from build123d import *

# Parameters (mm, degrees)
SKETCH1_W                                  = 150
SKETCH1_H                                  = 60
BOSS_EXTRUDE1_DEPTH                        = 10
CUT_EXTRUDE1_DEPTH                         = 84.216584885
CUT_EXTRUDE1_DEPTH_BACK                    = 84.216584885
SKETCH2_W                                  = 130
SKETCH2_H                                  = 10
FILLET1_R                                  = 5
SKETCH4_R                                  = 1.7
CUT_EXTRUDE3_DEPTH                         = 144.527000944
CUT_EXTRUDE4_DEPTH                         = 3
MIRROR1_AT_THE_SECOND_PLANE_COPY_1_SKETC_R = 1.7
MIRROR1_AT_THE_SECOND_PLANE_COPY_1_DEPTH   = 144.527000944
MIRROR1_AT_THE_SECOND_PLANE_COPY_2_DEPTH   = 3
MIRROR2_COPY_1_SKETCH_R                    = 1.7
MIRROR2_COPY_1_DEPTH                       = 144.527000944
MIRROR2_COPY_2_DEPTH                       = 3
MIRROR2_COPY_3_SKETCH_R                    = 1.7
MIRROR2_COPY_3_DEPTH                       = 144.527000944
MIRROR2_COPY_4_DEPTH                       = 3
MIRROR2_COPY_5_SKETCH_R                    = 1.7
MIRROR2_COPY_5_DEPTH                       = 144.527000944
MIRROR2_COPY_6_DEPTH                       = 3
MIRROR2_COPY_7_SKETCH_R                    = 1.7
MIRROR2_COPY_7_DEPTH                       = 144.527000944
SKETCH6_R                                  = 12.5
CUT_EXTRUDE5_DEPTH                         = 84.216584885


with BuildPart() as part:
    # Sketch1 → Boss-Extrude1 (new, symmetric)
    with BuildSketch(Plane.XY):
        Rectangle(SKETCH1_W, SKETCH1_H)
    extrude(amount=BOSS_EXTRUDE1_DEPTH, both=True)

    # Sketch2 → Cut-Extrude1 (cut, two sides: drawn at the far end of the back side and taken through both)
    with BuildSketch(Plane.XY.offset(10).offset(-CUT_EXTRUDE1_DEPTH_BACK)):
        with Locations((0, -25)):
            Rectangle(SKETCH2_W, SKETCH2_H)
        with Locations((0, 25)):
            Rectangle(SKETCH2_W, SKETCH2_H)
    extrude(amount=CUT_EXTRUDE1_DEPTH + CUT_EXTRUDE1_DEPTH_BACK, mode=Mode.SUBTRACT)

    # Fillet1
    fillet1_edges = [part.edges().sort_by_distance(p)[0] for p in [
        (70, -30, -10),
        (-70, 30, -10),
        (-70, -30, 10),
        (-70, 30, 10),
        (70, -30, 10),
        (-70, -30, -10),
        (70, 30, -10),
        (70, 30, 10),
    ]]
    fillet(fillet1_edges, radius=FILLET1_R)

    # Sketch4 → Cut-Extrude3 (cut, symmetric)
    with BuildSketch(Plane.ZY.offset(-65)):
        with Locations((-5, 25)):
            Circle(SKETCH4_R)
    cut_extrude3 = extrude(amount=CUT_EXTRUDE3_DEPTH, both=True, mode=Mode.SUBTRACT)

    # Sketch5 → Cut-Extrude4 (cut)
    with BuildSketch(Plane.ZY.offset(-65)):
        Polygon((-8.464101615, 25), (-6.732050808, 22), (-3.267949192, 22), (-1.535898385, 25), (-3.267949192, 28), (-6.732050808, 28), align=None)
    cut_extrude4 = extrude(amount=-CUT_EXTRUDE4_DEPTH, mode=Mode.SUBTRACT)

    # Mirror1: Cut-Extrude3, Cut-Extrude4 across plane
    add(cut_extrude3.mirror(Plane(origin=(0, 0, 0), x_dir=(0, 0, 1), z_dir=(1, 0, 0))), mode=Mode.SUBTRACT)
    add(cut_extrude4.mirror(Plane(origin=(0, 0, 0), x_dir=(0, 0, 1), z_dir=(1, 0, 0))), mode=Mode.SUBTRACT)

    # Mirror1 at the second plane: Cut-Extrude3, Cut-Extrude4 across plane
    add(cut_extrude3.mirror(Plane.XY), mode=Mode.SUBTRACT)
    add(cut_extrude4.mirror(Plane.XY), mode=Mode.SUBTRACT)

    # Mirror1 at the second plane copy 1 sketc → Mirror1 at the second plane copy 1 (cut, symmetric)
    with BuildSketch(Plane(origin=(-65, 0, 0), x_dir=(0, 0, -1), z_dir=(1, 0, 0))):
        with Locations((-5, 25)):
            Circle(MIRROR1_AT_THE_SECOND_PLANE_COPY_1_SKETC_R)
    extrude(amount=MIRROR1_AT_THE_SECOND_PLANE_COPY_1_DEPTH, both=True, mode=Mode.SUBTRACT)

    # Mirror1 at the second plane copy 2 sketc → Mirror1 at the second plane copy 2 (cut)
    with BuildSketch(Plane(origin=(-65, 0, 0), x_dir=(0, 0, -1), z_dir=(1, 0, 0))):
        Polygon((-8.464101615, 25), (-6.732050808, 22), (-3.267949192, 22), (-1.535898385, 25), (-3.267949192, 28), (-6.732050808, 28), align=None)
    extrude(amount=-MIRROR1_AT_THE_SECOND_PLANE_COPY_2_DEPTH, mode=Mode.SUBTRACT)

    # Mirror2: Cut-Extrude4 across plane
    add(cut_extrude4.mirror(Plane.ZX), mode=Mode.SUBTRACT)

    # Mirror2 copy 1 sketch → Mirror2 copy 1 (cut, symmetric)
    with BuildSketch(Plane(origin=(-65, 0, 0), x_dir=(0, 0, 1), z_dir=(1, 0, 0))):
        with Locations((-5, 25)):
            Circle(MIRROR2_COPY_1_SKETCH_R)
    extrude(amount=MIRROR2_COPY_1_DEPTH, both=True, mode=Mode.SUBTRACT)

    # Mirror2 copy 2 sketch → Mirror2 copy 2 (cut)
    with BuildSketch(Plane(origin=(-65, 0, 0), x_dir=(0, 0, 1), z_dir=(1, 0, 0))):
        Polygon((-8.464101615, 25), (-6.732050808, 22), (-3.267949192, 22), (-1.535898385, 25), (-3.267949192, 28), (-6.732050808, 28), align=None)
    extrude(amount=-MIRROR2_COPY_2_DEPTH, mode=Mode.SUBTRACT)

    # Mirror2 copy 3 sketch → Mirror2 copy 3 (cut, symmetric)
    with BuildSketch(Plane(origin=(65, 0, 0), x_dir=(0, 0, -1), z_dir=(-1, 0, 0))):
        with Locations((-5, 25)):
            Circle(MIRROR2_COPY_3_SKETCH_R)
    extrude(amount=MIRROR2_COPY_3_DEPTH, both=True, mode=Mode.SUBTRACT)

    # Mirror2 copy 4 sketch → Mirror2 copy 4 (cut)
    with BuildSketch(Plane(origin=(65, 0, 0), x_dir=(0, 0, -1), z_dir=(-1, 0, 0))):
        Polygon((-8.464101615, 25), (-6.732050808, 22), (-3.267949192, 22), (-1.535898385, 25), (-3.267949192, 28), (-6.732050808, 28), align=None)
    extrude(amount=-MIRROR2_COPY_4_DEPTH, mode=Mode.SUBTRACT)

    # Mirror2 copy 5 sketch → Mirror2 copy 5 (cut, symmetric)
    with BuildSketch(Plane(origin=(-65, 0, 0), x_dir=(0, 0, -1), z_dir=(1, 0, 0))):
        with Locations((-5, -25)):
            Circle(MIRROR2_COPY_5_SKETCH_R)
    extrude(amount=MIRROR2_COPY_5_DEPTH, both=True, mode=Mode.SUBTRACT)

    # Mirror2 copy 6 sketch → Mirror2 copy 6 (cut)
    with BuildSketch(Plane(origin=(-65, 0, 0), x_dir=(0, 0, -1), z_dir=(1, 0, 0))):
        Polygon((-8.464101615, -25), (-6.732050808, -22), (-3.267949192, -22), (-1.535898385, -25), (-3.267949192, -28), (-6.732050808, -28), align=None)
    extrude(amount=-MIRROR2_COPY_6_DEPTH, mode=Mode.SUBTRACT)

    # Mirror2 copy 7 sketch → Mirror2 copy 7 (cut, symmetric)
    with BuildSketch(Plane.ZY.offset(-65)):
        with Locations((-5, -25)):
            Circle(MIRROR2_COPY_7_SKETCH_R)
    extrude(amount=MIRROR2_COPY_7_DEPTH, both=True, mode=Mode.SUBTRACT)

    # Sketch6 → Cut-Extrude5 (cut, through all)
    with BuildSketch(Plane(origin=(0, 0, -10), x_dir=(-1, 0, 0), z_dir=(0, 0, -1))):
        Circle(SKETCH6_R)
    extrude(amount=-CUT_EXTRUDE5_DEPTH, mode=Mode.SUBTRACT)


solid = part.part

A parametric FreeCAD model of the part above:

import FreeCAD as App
import Part
import Sketcher

V = App.Vector
Q = App.Units.Quantity


def edges_at(feature, points):
    """Names of the edges that pass closest to the given points."""
    edges = feature.Shape.Edges
    near = lambda p: min(range(len(edges)), key=lambda i: edges[i].distToShape(Part.Vertex(*p))[0])
    return sorted({f"Edge{near(p) + 1}" for p in points})

doc = App.newDocument("Part")
body = doc.addObject("PartDesign::Body", "Body")

sketch1 = doc.addObject("Sketcher::SketchObject", "Sketch")
body.addObject(sketch1)
sketch1.AttachmentSupport = (doc.XY_Plane, [""])
sketch1.MapMode = "FlatFace"
sketch1.addGeometry([
    Part.LineSegment(V(-75, 30, 0), V(-75, -30, 0)),
    Part.LineSegment(V(-75, -30, 0), V(75, -30, 0)),
    Part.LineSegment(V(75, -30, 0), V(75, 30, 0)),
    Part.LineSegment(V(75, 30, 0), V(-75, 30, 0)),
], False)
sketch1.addConstraint([
    Sketcher.Constraint("Coincident", 0, 2, 1, 1),
    Sketcher.Constraint("Coincident", 1, 2, 2, 1),
    Sketcher.Constraint("Coincident", 2, 2, 3, 1),
    Sketcher.Constraint("Coincident", 3, 2, 0, 1),
    Sketcher.Constraint("Vertical", 0),
    Sketcher.Constraint("Horizontal", 1),
    Sketcher.Constraint("Vertical", 2),
    Sketcher.Constraint("Horizontal", 3),
    Sketcher.Constraint("Symmetric", 0, 2, 2, 2, -1, 1),
    Sketcher.Constraint("DistanceX", 1, 1, 1, 2, Q("150 mm")),
    Sketcher.Constraint("DistanceY", 0, 2, 0, 1, Q("60 mm")),
])
pad1 = doc.addObject("PartDesign::Pad", "Pad")
body.addObject(pad1)
pad1.Profile = sketch1
pad1.Length = 20
pad1.Midplane = True

sketch2 = doc.addObject("Sketcher::SketchObject", "Sketch001")
body.addObject(sketch2)
sketch2.AttachmentSupport = (doc.XY_Plane, [""])
sketch2.MapMode = "FlatFace"
sketch2.AttachmentOffset = App.Placement(V(0, 0, 10), App.Rotation())
sketch2.addGeometry([
    Part.LineSegment(V(-65, -20, 0), V(-65, -30, 0)),
    Part.LineSegment(V(-65, -30, 0), V(65, -30, 0)),
    Part.LineSegment(V(65, -30, 0), V(65, -20, 0)),
    Part.LineSegment(V(65, -20, 0), V(-65, -20, 0)),
    Part.LineSegment(V(-65, 30, 0), V(-65, 20, 0)),
    Part.LineSegment(V(-65, 20, 0), V(65, 20, 0)),
    Part.LineSegment(V(65, 20, 0), V(65, 30, 0)),
    Part.LineSegment(V(65, 30, 0), V(-65, 30, 0)),
], False)
sketch2.addConstraint([
    Sketcher.Constraint("Coincident", 0, 2, 1, 1),
    Sketcher.Constraint("Coincident", 1, 2, 2, 1),
    Sketcher.Constraint("Coincident", 2, 2, 3, 1),
    Sketcher.Constraint("Coincident", 3, 2, 0, 1),
    Sketcher.Constraint("Coincident", 4, 2, 5, 1),
    Sketcher.Constraint("Coincident", 5, 2, 6, 1),
    Sketcher.Constraint("Coincident", 6, 2, 7, 1),
    Sketcher.Constraint("Coincident", 7, 2, 4, 1),
    Sketcher.Constraint("Vertical", 0),
    Sketcher.Constraint("Horizontal", 1),
    Sketcher.Constraint("Vertical", 2),
    Sketcher.Constraint("Horizontal", 3),
    Sketcher.Constraint("Vertical", 4),
    Sketcher.Constraint("Horizontal", 5),
    Sketcher.Constraint("Vertical", 6),
    Sketcher.Constraint("Horizontal", 7),
    Sketcher.Constraint("Symmetric", 2, 2, 4, 2, -1, 1),
    Sketcher.Constraint("Symmetric", 0, 2, 6, 2, -1, 1),
    Sketcher.Constraint("Vertical", 3, 2, 4, 2),
    Sketcher.Constraint("DistanceX", 1, 1, 1, 2, Q("130 mm")),
    Sketcher.Constraint("DistanceY", 0, 2, 0, 1, Q("10 mm")),
    Sketcher.Constraint("DistanceY", 0, 2, -1, 1, Q("30 mm")),
])
pocket1 = doc.addObject("PartDesign::Pocket", "Pocket")
body.addObject(pocket1)
pocket1.Profile = sketch2
pocket1.Type = "ThroughAll"
pocket1.Midplane = True
doc.recompute()

fillet = doc.addObject("PartDesign::Fillet", "Fillet")
body.addObject(fillet)
fillet.Base = (pocket1, edges_at(pocket1, [
    (70, -30, -10),
    (-70, 30, -10),
    (-70, -30, 10),
    (-70, 30, 10),
    (70, -30, 10),
    (-70, -30, -10),
    (70, 30, -10),
    (70, 30, 10),
]))
fillet.Radius = 5

sketch3 = doc.addObject("Sketcher::SketchObject", "Sketch002")
body.addObject(sketch3)
sketch3.AttachmentSupport = (doc.YZ_Plane, [""])
sketch3.MapMode = "FlatFace"
sketch3.AttachmentOffset = App.Placement(V(0, 0, 65), App.Rotation())
sketch3.addGeometry(Part.Circle(V(25, -5, 0), V(0, 0, 1), 1.7), False)
sketch3.addConstraint([
    Sketcher.Constraint("Diameter", 0, Q("3.4 mm")),
    Sketcher.Constraint("DistanceX", -1, 1, 0, 3, Q("25 mm")),
    Sketcher.Constraint("DistanceY", 0, 3, -1, 1, Q("5 mm")),
])
pocket2 = doc.addObject("PartDesign::Pocket", "Pocket001")
body.addObject(pocket2)
pocket2.Profile = sketch3
pocket2.Length = 289.054002
pocket2.Midplane = True

sketch4 = doc.addObject("Sketcher::SketchObject", "Sketch003")
body.addObject(sketch4)
sketch4.AttachmentSupport = (doc.YZ_Plane, [""])
sketch4.MapMode = "FlatFace"
sketch4.AttachmentOffset = App.Placement(V(0, 0, 65), App.Rotation())
sketch4.addGeometry([
    Part.LineSegment(V(25, -8.5, 0), V(22, -6.7, 0)),
    Part.LineSegment(V(22, -6.7, 0), V(22, -3.3, 0)),
    Part.LineSegment(V(22, -3.3, 0), V(25, -1.5, 0)),
    Part.LineSegment(V(25, -1.5, 0), V(28, -3.3, 0)),
    Part.LineSegment(V(28, -3.3, 0), V(28, -6.7, 0)),
    Part.LineSegment(V(28, -6.7, 0), V(25, -8.5, 0)),
], False)
sketch4.addConstraint([
    Sketcher.Constraint("Coincident", 0, 2, 1, 1),
    Sketcher.Constraint("Coincident", 1, 2, 2, 1),
    Sketcher.Constraint("Coincident", 2, 2, 3, 1),
    Sketcher.Constraint("Coincident", 3, 2, 4, 1),
    Sketcher.Constraint("Coincident", 4, 2, 5, 1),
    Sketcher.Constraint("Coincident", 5, 2, 0, 1),
    Sketcher.Constraint("Vertical", 1),
    Sketcher.Constraint("Vertical", 4),
    Sketcher.Constraint("Parallel", 0, 3),
    Sketcher.Constraint("Parallel", 2, 5),
    Sketcher.Constraint("Horizontal", 1, 2, 3, 2),
    Sketcher.Constraint("Horizontal", 0, 2, 4, 2),
    Sketcher.Constraint("Vertical", 2, 2, 5, 2),
    Sketcher.Constraint("Angle", 0, Q("150 deg")),
    Sketcher.Constraint("DistanceX", -1, 1, 0, 2, Q("22 mm")),
    Sketcher.Constraint("DistanceX", -1, 1, 2, 2, Q("25 mm")),
    Sketcher.Constraint("DistanceY", 1, 1, 1, 2, Q("3.464102 mm")),
    Sketcher.Constraint("DistanceY", 2, 2, -1, 1, Q("1.535898 mm")),
])
pocket3 = doc.addObject("PartDesign::Pocket", "Pocket002")
body.addObject(pocket3)
pocket3.Profile = sketch4
pocket3.Length = 3
pocket3.Reversed = True
doc.recompute()

mirrored = doc.addObject("PartDesign::Mirrored", "Mirrored")
body.addObject(mirrored)
mirrored.Originals = [pocket2, pocket3]
mirrored.MirrorPlane = (doc.YZ_Plane, [""])
body.Tip = mirrored
doc.recompute()

mirrored2 = doc.addObject("PartDesign::Mirrored", "Mirrored001")
body.addObject(mirrored2)
mirrored2.Originals = [pocket2, pocket3]
mirrored2.MirrorPlane = (doc.XY_Plane, [""])
body.Tip = mirrored2

sketch5 = doc.addObject("Sketcher::SketchObject", "Sketch004")
body.addObject(sketch5)
sketch5.AttachmentSupport = (doc.YZ_Plane, [""])
sketch5.MapMode = "FlatFace"
sketch5.AttachmentOffset = App.Placement(V(0, 0, -65), App.Rotation())
sketch5.addGeometry(Part.Circle(V(25, 5, 0), V(0, 0, 1), 1.7), False)
sketch5.addConstraint([
    Sketcher.Constraint("Diameter", 0, Q("3.4 mm")),
    Sketcher.Constraint("DistanceX", -1, 1, 0, 3, Q("25 mm")),
    Sketcher.Constraint("DistanceY", -1, 1, 0, 3, Q("5 mm")),
])
pocket4 = doc.addObject("PartDesign::Pocket", "Pocket003")
body.addObject(pocket4)
pocket4.Profile = sketch5
pocket4.Length = 289.054002
pocket4.Midplane = True

sketch6 = doc.addObject("Sketcher::SketchObject", "Sketch005")
body.addObject(sketch6)
sketch6.AttachmentSupport = (doc.YZ_Plane, [""])
sketch6.MapMode = "FlatFace"
sketch6.AttachmentOffset = App.Placement(V(0, 0, -65), App.Rotation())
sketch6.addGeometry([
    Part.LineSegment(V(25, 8.5, 0), V(22, 6.7, 0)),
    Part.LineSegment(V(22, 6.7, 0), V(22, 3.3, 0)),
    Part.LineSegment(V(22, 3.3, 0), V(25, 1.5, 0)),
    Part.LineSegment(V(25, 1.5, 0), V(28, 3.3, 0)),
    Part.LineSegment(V(28, 3.3, 0), V(28, 6.7, 0)),
    Part.LineSegment(V(28, 6.7, 0), V(25, 8.5, 0)),
], False)
sketch6.addConstraint([
    Sketcher.Constraint("Coincident", 0, 2, 1, 1),
    Sketcher.Constraint("Coincident", 1, 2, 2, 1),
    Sketcher.Constraint("Coincident", 2, 2, 3, 1),
    Sketcher.Constraint("Coincident", 3, 2, 4, 1),
    Sketcher.Constraint("Coincident", 4, 2, 5, 1),
    Sketcher.Constraint("Coincident", 5, 2, 0, 1),
    Sketcher.Constraint("Vertical", 1),
    Sketcher.Constraint("Vertical", 4),
    Sketcher.Constraint("Parallel", 0, 3),
    Sketcher.Constraint("Parallel", 2, 5),
    Sketcher.Constraint("Horizontal", 1, 2, 3, 2),
    Sketcher.Constraint("Horizontal", 0, 2, 4, 2),
    Sketcher.Constraint("Vertical", 2, 2, 5, 2),
    Sketcher.Constraint("Angle", 0, Q("-150 deg")),
    Sketcher.Constraint("DistanceX", -1, 1, 0, 2, Q("22 mm")),
    Sketcher.Constraint("DistanceX", -1, 1, 2, 2, Q("25 mm")),
    Sketcher.Constraint("DistanceY", 1, 2, 1, 1, Q("3.464102 mm")),
    Sketcher.Constraint("DistanceY", -1, 1, 2, 2, Q("1.535898 mm")),
])
pocket5 = doc.addObject("PartDesign::Pocket", "Pocket004")
body.addObject(pocket5)
pocket5.Profile = sketch6
pocket5.Length = 3
doc.recompute()

mirrored3 = doc.addObject("PartDesign::Mirrored", "Mirrored002")
body.addObject(mirrored3)
mirrored3.Originals = [pocket3]
mirrored3.MirrorPlane = (doc.XZ_Plane, [""])
body.Tip = mirrored3

sketch7 = doc.addObject("Sketcher::SketchObject", "Sketch006")
body.addObject(sketch7)
sketch7.AttachmentSupport = (doc.YZ_Plane, [""])
sketch7.MapMode = "FlatFace"
sketch7.AttachmentOffset = App.Placement(V(0, 0, -65), App.Rotation())
sketch7.addGeometry(Part.Circle(V(-25, -5, 0), V(0, 0, 1), 1.7), False)
sketch7.addConstraint([
    Sketcher.Constraint("Diameter", 0, Q("3.4 mm")),
    Sketcher.Constraint("DistanceX", 0, 3, -1, 1, Q("25 mm")),
    Sketcher.Constraint("DistanceY", 0, 3, -1, 1, Q("5 mm")),
])
pocket6 = doc.addObject("PartDesign::Pocket", "Pocket005")
body.addObject(pocket6)
pocket6.Profile = sketch7
pocket6.Length = 289.054002
pocket6.Midplane = True

sketch8 = doc.addObject("Sketcher::SketchObject", "Sketch007")
body.addObject(sketch8)
sketch8.AttachmentSupport = (doc.YZ_Plane, [""])
sketch8.MapMode = "FlatFace"
sketch8.AttachmentOffset = App.Placement(V(0, 0, -65), App.Rotation())
sketch8.addGeometry([
    Part.LineSegment(V(-25, -8.5, 0), V(-22, -6.7, 0)),
    Part.LineSegment(V(-22, -6.7, 0), V(-22, -3.3, 0)),
    Part.LineSegment(V(-22, -3.3, 0), V(-25, -1.5, 0)),
    Part.LineSegment(V(-25, -1.5, 0), V(-28, -3.3, 0)),
    Part.LineSegment(V(-28, -3.3, 0), V(-28, -6.7, 0)),
    Part.LineSegment(V(-28, -6.7, 0), V(-25, -8.5, 0)),
], False)
sketch8.addConstraint([
    Sketcher.Constraint("Coincident", 0, 2, 1, 1),
    Sketcher.Constraint("Coincident", 1, 2, 2, 1),
    Sketcher.Constraint("Coincident", 2, 2, 3, 1),
    Sketcher.Constraint("Coincident", 3, 2, 4, 1),
    Sketcher.Constraint("Coincident", 4, 2, 5, 1),
    Sketcher.Constraint("Coincident", 5, 2, 0, 1),
    Sketcher.Constraint("Vertical", 1),
    Sketcher.Constraint("Vertical", 4),
    Sketcher.Constraint("Parallel", 0, 3),
    Sketcher.Constraint("Parallel", 2, 5),
    Sketcher.Constraint("Horizontal", 1, 2, 3, 2),
    Sketcher.Constraint("Horizontal", 0, 2, 4, 2),
    Sketcher.Constraint("Vertical", 2, 2, 5, 2),
    Sketcher.Constraint("Angle", 0, Q("30 deg")),
    Sketcher.Constraint("DistanceX", 0, 2, -1, 1, Q("22 mm")),
    Sketcher.Constraint("DistanceX", 2, 2, -1, 1, Q("25 mm")),
    Sketcher.Constraint("DistanceY", 1, 1, 1, 2, Q("3.464102 mm")),
    Sketcher.Constraint("DistanceY", 2, 2, -1, 1, Q("1.535898 mm")),
])
pocket7 = doc.addObject("PartDesign::Pocket", "Pocket006")
body.addObject(pocket7)
pocket7.Profile = sketch8
pocket7.Length = 3

sketch9 = doc.addObject("Sketcher::SketchObject", "Sketch008")
body.addObject(sketch9)
sketch9.AttachmentSupport = (doc.YZ_Plane, [""])
sketch9.MapMode = "FlatFace"
sketch9.AttachmentOffset = App.Placement(V(0, 0, 65), App.Rotation())
sketch9.addGeometry(Part.Circle(V(-25, 5, 0), V(0, 0, 1), 1.7), False)
sketch9.addConstraint([
    Sketcher.Constraint("Diameter", 0, Q("3.4 mm")),
    Sketcher.Constraint("DistanceX", 0, 3, -1, 1, Q("25 mm")),
    Sketcher.Constraint("DistanceY", -1, 1, 0, 3, Q("5 mm")),
])
pocket8 = doc.addObject("PartDesign::Pocket", "Pocket007")
body.addObject(pocket8)
pocket8.Profile = sketch9
pocket8.Length = 289.054002
pocket8.Midplane = True

sketch10 = doc.addObject("Sketcher::SketchObject", "Sketch009")
body.addObject(sketch10)
sketch10.AttachmentSupport = (doc.YZ_Plane, [""])
sketch10.MapMode = "FlatFace"
sketch10.AttachmentOffset = App.Placement(V(0, 0, 65), App.Rotation())
sketch10.addGeometry([
    Part.LineSegment(V(-25, 8.5, 0), V(-22, 6.7, 0)),
    Part.LineSegment(V(-22, 6.7, 0), V(-22, 3.3, 0)),
    Part.LineSegment(V(-22, 3.3, 0), V(-25, 1.5, 0)),
    Part.LineSegment(V(-25, 1.5, 0), V(-28, 3.3, 0)),
    Part.LineSegment(V(-28, 3.3, 0), V(-28, 6.7, 0)),
    Part.LineSegment(V(-28, 6.7, 0), V(-25, 8.5, 0)),
], False)
sketch10.addConstraint([
    Sketcher.Constraint("Coincident", 0, 2, 1, 1),
    Sketcher.Constraint("Coincident", 1, 2, 2, 1),
    Sketcher.Constraint("Coincident", 2, 2, 3, 1),
    Sketcher.Constraint("Coincident", 3, 2, 4, 1),
    Sketcher.Constraint("Coincident", 4, 2, 5, 1),
    Sketcher.Constraint("Coincident", 5, 2, 0, 1),
    Sketcher.Constraint("Vertical", 1),
    Sketcher.Constraint("Vertical", 4),
    Sketcher.Constraint("Parallel", 0, 3),
    Sketcher.Constraint("Parallel", 2, 5),
    Sketcher.Constraint("Horizontal", 1, 2, 3, 2),
    Sketcher.Constraint("Horizontal", 0, 2, 4, 2),
    Sketcher.Constraint("Vertical", 2, 2, 5, 2),
    Sketcher.Constraint("Angle", 0, Q("-30 deg")),
    Sketcher.Constraint("DistanceX", 0, 2, -1, 1, Q("22 mm")),
    Sketcher.Constraint("DistanceX", 2, 2, -1, 1, Q("25 mm")),
    Sketcher.Constraint("DistanceY", 1, 2, 1, 1, Q("3.464102 mm")),
    Sketcher.Constraint("DistanceY", -1, 1, 2, 2, Q("1.535898 mm")),
])
pocket9 = doc.addObject("PartDesign::Pocket", "Pocket008")
body.addObject(pocket9)
pocket9.Profile = sketch10
pocket9.Length = 3
pocket9.Reversed = True

sketch11 = doc.addObject("Sketcher::SketchObject", "Sketch010")
body.addObject(sketch11)
sketch11.AttachmentSupport = (doc.YZ_Plane, [""])
sketch11.MapMode = "FlatFace"
sketch11.AttachmentOffset = App.Placement(V(0, 0, -65), App.Rotation())
sketch11.addGeometry(Part.Circle(V(-25, 5, 0), V(0, 0, 1), 1.7), False)
sketch11.addConstraint([
    Sketcher.Constraint("Diameter", 0, Q("3.4 mm")),
    Sketcher.Constraint("DistanceX", 0, 3, -1, 1, Q("25 mm")),
    Sketcher.Constraint("DistanceY", -1, 1, 0, 3, Q("5 mm")),
])
pocket10 = doc.addObject("PartDesign::Pocket", "Pocket009")
body.addObject(pocket10)
pocket10.Profile = sketch11
pocket10.Length = 289.054002
pocket10.Midplane = True

sketch12 = doc.addObject("Sketcher::SketchObject", "Sketch011")
body.addObject(sketch12)
sketch12.AttachmentSupport = (doc.YZ_Plane, [""])
sketch12.MapMode = "FlatFace"
sketch12.AttachmentOffset = App.Placement(V(0, 0, -65), App.Rotation())
sketch12.addGeometry([
    Part.LineSegment(V(-22, 6.7, 0), V(-25, 8.5, 0)),
    Part.LineSegment(V(-25, 8.5, 0), V(-28, 6.7, 0)),
    Part.LineSegment(V(-28, 6.7, 0), V(-28, 3.3, 0)),
    Part.LineSegment(V(-28, 3.3, 0), V(-25, 1.5, 0)),
    Part.LineSegment(V(-25, 1.5, 0), V(-22, 3.3, 0)),
    Part.LineSegment(V(-22, 3.3, 0), V(-22, 6.7, 0)),
], False)
sketch12.addConstraint([
    Sketcher.Constraint("Coincident", 0, 2, 1, 1),
    Sketcher.Constraint("Coincident", 1, 2, 2, 1),
    Sketcher.Constraint("Coincident", 2, 2, 3, 1),
    Sketcher.Constraint("Coincident", 3, 2, 4, 1),
    Sketcher.Constraint("Coincident", 4, 2, 5, 1),
    Sketcher.Constraint("Coincident", 5, 2, 0, 1),
    Sketcher.Constraint("Vertical", 2),
    Sketcher.Constraint("Vertical", 5),
    Sketcher.Constraint("Parallel", 0, 3),
    Sketcher.Constraint("Parallel", 1, 4),
    Sketcher.Constraint("Horizontal", 2, 2, 4, 2),
    Sketcher.Constraint("Horizontal", 1, 2, 5, 2),
    Sketcher.Constraint("Vertical", 0, 2, 3, 2),
    Sketcher.Constraint("Angle", 0, Q("150 deg")),
    Sketcher.Constraint("DistanceX", 0, 2, -1, 1, Q("25 mm")),
    Sketcher.Constraint("DistanceX", 1, 2, -1, 1, Q("28 mm")),
    Sketcher.Constraint("DistanceY", 2, 2, 2, 1, Q("3.464102 mm")),
    Sketcher.Constraint("DistanceY", -1, 1, 0, 2, Q("8.464102 mm")),
])
pocket11 = doc.addObject("PartDesign::Pocket", "Pocket010")
body.addObject(pocket11)
pocket11.Profile = sketch12
pocket11.Length = 3

sketch13 = doc.addObject("Sketcher::SketchObject", "Sketch012")
body.addObject(sketch13)
sketch13.AttachmentSupport = (doc.YZ_Plane, [""])
sketch13.MapMode = "FlatFace"
sketch13.AttachmentOffset = App.Placement(V(0, 0, 65), App.Rotation())
sketch13.addGeometry(Part.Circle(V(-25, -5, 0), V(0, 0, 1), 1.7), False)
sketch13.addConstraint([
    Sketcher.Constraint("Diameter", 0, Q("3.4 mm")),
    Sketcher.Constraint("DistanceX", 0, 3, -1, 1, Q("25 mm")),
    Sketcher.Constraint("DistanceY", 0, 3, -1, 1, Q("5 mm")),
])
pocket12 = doc.addObject("PartDesign::Pocket", "Pocket011")
body.addObject(pocket12)
pocket12.Profile = sketch13
pocket12.Length = 289.054002
pocket12.Midplane = True

sketch14 = doc.addObject("Sketcher::SketchObject", "Sketch013")
body.addObject(sketch14)
sketch14.AttachmentSupport = (doc.XY_Plane, [""])
sketch14.MapMode = "FlatFace"
sketch14.AttachmentOffset = App.Placement(V(0, 0, -10), App.Rotation())
sketch14.addGeometry(Part.Circle(V(0, 0, 0), V(0, 0, 1), 12), False)
sketch14.addConstraint([
    Sketcher.Constraint("Coincident", 0, 3, -1, 1),
    Sketcher.Constraint("Diameter", 0, Q("25 mm")),
])
pocket13 = doc.addObject("PartDesign::Pocket", "Pocket012")
body.addObject(pocket13)
pocket13.Profile = sketch14
pocket13.Type = "ThroughAll"
pocket13.Reversed = True

doc.recompute()
